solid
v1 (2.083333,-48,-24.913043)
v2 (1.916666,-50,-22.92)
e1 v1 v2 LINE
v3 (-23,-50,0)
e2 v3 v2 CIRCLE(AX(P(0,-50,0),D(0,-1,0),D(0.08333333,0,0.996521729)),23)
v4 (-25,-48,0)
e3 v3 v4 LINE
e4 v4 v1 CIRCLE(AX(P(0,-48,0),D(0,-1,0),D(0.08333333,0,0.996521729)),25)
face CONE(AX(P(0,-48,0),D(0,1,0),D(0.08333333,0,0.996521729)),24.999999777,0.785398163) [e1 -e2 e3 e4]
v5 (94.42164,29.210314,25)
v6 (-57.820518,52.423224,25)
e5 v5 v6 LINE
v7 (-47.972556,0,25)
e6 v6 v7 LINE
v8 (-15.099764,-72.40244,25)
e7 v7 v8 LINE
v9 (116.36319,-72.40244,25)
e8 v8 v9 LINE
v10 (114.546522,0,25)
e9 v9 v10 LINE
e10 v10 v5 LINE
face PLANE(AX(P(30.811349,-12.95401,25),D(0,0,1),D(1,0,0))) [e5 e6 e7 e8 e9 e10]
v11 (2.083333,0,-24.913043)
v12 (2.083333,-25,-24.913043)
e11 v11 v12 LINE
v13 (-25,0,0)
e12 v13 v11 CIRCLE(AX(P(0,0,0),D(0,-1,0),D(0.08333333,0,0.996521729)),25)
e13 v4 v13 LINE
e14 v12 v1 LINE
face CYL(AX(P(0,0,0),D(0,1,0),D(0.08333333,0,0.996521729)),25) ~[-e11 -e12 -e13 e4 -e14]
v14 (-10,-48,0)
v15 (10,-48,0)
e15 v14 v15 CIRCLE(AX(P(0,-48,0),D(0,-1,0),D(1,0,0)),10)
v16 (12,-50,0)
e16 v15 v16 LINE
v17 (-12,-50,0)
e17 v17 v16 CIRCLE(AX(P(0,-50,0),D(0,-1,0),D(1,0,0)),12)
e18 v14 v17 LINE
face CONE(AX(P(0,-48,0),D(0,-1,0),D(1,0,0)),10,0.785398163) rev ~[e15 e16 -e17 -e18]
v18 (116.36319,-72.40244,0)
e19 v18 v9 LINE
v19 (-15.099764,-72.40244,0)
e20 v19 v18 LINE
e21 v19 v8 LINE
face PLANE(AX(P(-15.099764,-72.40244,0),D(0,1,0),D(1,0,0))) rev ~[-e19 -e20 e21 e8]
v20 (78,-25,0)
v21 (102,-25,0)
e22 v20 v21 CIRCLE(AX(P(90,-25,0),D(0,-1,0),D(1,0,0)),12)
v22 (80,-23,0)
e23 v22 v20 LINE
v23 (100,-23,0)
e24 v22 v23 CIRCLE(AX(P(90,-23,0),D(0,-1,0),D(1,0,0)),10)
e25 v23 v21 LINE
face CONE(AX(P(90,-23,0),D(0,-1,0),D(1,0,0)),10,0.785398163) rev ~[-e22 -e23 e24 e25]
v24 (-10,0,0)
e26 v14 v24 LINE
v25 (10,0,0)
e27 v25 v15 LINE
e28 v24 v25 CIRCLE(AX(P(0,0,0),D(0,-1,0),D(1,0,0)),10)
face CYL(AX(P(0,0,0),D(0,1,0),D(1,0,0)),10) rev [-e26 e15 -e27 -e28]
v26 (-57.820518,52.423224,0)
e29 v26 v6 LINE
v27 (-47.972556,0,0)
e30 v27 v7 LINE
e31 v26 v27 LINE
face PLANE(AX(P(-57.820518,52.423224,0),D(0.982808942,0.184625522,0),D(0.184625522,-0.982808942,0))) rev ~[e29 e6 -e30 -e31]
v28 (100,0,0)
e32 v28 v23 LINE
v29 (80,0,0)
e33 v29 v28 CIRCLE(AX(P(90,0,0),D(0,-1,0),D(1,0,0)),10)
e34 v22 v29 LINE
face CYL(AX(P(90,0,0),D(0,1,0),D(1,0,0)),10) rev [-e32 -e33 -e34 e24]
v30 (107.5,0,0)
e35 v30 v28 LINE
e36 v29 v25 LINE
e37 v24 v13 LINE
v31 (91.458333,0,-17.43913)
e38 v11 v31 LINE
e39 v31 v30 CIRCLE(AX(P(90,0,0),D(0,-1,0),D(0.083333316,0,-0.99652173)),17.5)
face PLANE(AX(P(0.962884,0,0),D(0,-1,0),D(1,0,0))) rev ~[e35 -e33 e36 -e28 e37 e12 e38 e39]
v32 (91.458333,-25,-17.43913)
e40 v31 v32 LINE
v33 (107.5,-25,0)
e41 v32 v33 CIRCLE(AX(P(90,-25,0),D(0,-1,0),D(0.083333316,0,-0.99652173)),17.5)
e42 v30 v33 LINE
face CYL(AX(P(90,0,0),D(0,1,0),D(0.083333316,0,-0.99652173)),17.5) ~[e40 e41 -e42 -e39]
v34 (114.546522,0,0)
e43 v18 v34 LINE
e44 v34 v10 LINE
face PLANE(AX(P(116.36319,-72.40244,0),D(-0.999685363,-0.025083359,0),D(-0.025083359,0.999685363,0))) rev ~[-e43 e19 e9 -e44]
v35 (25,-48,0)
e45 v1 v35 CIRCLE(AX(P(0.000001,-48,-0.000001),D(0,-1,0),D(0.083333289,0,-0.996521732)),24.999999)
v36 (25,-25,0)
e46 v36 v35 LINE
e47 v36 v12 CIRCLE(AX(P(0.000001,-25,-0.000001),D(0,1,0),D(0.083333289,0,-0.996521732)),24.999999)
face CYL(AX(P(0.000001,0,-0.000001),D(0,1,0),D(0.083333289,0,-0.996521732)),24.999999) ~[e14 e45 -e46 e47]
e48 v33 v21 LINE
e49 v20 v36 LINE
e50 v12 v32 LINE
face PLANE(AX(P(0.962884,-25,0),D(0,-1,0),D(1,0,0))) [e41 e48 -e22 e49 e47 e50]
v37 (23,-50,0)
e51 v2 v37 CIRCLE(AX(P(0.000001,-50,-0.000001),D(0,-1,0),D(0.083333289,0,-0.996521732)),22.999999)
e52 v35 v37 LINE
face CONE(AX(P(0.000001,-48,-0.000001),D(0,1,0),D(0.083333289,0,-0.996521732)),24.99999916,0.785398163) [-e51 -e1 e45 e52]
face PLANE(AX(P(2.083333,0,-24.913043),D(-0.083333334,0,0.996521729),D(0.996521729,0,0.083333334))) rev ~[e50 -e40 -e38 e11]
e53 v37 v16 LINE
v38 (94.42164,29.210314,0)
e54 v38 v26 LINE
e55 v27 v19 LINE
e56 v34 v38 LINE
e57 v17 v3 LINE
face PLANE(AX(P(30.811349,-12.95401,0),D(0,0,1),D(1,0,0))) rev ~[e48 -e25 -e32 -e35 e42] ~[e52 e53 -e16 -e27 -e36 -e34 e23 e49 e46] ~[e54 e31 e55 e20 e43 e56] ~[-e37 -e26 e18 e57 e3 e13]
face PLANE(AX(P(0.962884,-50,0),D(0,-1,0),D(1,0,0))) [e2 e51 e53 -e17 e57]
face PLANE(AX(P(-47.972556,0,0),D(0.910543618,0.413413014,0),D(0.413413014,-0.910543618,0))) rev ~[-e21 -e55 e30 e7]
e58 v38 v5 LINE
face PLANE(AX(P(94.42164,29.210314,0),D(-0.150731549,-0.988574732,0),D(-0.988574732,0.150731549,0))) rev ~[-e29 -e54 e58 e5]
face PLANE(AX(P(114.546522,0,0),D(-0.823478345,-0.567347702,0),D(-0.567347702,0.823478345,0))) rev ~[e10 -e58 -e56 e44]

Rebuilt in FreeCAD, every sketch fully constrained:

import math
import FreeCAD as App
import Part
import Sketcher
Q = App.Units.Quantity


def edges_at(feature, points):
    """Names of the edges that pass closest to the given points."""
    edges = feature.Shape.Edges
    near = lambda p: min(range(len(edges)), key=lambda i: edges[i].distToShape(Part.Vertex(*p))[0])
    return sorted({f"Edge{near(p) + 1}" for p in points})

doc = App.newDocument("Part")
body = doc.addObject("PartDesign::Body", "Body")

# Sketch on XZ plane
sketch1 = doc.addObject("Sketcher::SketchObject", "Sketch")
body.addObject(sketch1)
sketch1.AttachmentSupport = (doc.XZ_Plane, [""])
sketch1.MapMode = "FlatFace"
sketch1.addGeometry([
    Part.ArcOfCircle(Part.Circle(App.Vector(0, 0, 0), App.Vector(0, 0, 1), 25), math.radians(85), math.radians(275)),  # 0
    Part.LineSegment(App.Vector(2, -25, 0), App.Vector(91, -17, 0)),  # 1
    Part.ArcOfCircle(Part.Circle(App.Vector(90, 0, 0), App.Vector(0, 0, 1), 18), math.radians(-85), math.radians(0)),  # 2
    Part.ArcOfCircle(Part.Circle(App.Vector(90, 0, 0), App.Vector(0, 0, 1), 18), math.radians(0), math.radians(85)),  # 3
    Part.LineSegment(App.Vector(91, 17, 0), App.Vector(2, 25, 0)),  # 4
    Part.Circle(App.Vector(0, 0, 0), App.Vector(0, 0, 1), 10),  # 5
    Part.Circle(App.Vector(90, 0, 0), App.Vector(0, 0, 1), 10),  # 6
], False)
sketch1.addConstraint([
    Sketcher.Constraint("Tangent", 0, 2, 1, 1),
    Sketcher.Constraint("Tangent", 1, 2, 2, 1),
    Sketcher.Constraint("Tangent", 2, 2, 3, 1),
    Sketcher.Constraint("Tangent", 3, 2, 4, 1),
    Sketcher.Constraint("Tangent", 4, 2, 0, 1),
    Sketcher.Constraint("Coincident", 0, 3, -1, 1),
    Sketcher.Constraint("Coincident", 5, 3, -1, 1),
    Sketcher.Constraint("Coincident", 6, 3, 2, 3),
    Sketcher.Constraint("Equal", 2, 3),
    Sketcher.Constraint("Equal", 5, 6),
    Sketcher.Constraint("PointOnObject", 2, 3, -1),
    Sketcher.Constraint("PointOnObject", 2, 2, -1),
    Sketcher.Constraint("Diameter", 5, Q("20 mm")),
    Sketcher.Constraint("Radius", 0, Q("25 mm")),
    Sketcher.Constraint("Radius", 2, Q("17.5 mm")),
    Sketcher.Constraint("DistanceX", -1, 1, 2, 3, Q("90 mm")),
])
pad1 = doc.addObject("PartDesign::Pad", "Pad")
body.addObject(pad1)
pad1.Profile = sketch1
pad1.Length = 25

# Sketch on XZ plane
sketch2 = doc.addObject("Sketcher::SketchObject", "Sketch001")
body.addObject(sketch2)
sketch2.AttachmentSupport = (doc.XZ_Plane, [""])
sketch2.MapMode = "FlatFace"
sketch2.addGeometry([
    Part.ArcOfCircle(Part.Circle(App.Vector(0, 0, 0), App.Vector(0, 0, 1), 25), math.radians(-85), math.radians(0)),
    Part.ArcOfCircle(Part.Circle(App.Vector(0, 0, 0), App.Vector(0, 0, 1), 25), math.radians(0), math.radians(85)),
    Part.ArcOfCircle(Part.Circle(App.Vector(0, 0, 0), App.Vector(0, 0, 1), 25), math.radians(85), math.radians(275)),
    Part.Circle(App.Vector(0, 0, 0), App.Vector(0, 0, 1), 10),
], False)
sketch2.addConstraint([
    Sketcher.Constraint("Tangent", 0, 2, 1, 1),
    Sketcher.Constraint("Tangent", 1, 2, 2, 1),
    Sketcher.Constraint("Tangent", 2, 2, 0, 1),
    Sketcher.Constraint("Coincident", 0, 3, -1, 1),
    Sketcher.Constraint("Coincident", 3, 3, -1, 1),
    Sketcher.Constraint("PointOnObject", 0, 2, -1),
    Sketcher.Constraint("Vertical", 1, 2, 2, 2),
    Sketcher.Constraint("Diameter", 3, Q("20 mm")),
    Sketcher.Constraint("Radius", 0, Q("24.999999 mm")),
    Sketcher.Constraint("DistanceX", -1, 1, 1, 2, Q("2.083333 mm")),
])
pad2 = doc.addObject("PartDesign::Pad", "Pad001")
body.addObject(pad2)
pad2.Profile = sketch2
pad2.Length = 50
doc.recompute()

chamfer = doc.addObject("PartDesign::Chamfer", "Chamfer")
body.addObject(chamfer)
chamfer.Base = (pad2, edges_at(pad2, [(-25, -50, 0), (-10, -50, 0), (80, -25, 0)]))
chamfer.Size = 2

# Sketch on XY plane
sketch3 = doc.addObject("Sketcher::SketchObject", "Sketch002")
body.addObject(sketch3)
sketch3.AttachmentSupport = (doc.XY_Plane, [""])
sketch3.MapMode = "FlatFace"
sketch3.addGeometry([
    Part.LineSegment(App.Vector(116, -72, 0), App.Vector(115, 0, 0)),  # 0
    Part.LineSegment(App.Vector(115, 0, 0), App.Vector(94, 29, 0)),  # 1
    Part.LineSegment(App.Vector(94, 29, 0), App.Vector(-58, 52, 0)),  # 2
    Part.LineSegment(App.Vector(-58, 52, 0), App.Vector(-48, 0, 0)),  # 3
    Part.LineSegment(App.Vector(-48, 0, 0), App.Vector(-15, -72, 0)),  # 4
    Part.LineSegment(App.Vector(-15, -72, 0), App.Vector(116, -72, 0)),  # 5
], False)
sketch3.addConstraint([
    Sketcher.Constraint("Coincident", 0, 2, 1, 1),
    Sketcher.Constraint("Coincident", 1, 2, 2, 1),
    Sketcher.Constraint("Coincident", 2, 2, 3, 1),
    Sketcher.Constraint("Coincident", 3, 2, 4, 1),
    Sketcher.Constraint("Coincident", 4, 2, 5, 1),
    Sketcher.Constraint("Coincident", 5, 2, 0, 1),
    Sketcher.Constraint("Horizontal", 5),
    Sketcher.Constraint("PointOnObject", 0, 2, -1),
    Sketcher.Constraint("PointOnObject", 3, 2, -1),
    Sketcher.Constraint("Distance", 3, Q("53.340198 mm")),
    Sketcher.Constraint("Distance", 2, Q("154.001668 mm")),
    Sketcher.Constraint("Distance", 4, Q("79.51562 mm")),
    Sketcher.Constraint("DistanceX", 5, 1, 5, 2, Q("131.462954 mm")),
    Sketcher.Constraint("DistanceX", -1, 1, 0, 2, Q("114.546522 mm")),
    Sketcher.Constraint("DistanceX", -1, 1, 1, 2, Q("94.42164 mm")),
    Sketcher.Constraint("DistanceY", 4, 2, -1, 1, Q("72.40244 mm")),
    Sketcher.Constraint("DistanceX", -1, 1, 5, 2, Q("116.36319 mm")),
    Sketcher.Constraint("DistanceY", 1, 2, 2, 2, Q("23.21291 mm")),
])
pad3 = doc.addObject("PartDesign::Pad", "Pad002")
body.addObject(pad3)
pad3.Profile = sketch3
pad3.Length = 25

doc.recompute()
